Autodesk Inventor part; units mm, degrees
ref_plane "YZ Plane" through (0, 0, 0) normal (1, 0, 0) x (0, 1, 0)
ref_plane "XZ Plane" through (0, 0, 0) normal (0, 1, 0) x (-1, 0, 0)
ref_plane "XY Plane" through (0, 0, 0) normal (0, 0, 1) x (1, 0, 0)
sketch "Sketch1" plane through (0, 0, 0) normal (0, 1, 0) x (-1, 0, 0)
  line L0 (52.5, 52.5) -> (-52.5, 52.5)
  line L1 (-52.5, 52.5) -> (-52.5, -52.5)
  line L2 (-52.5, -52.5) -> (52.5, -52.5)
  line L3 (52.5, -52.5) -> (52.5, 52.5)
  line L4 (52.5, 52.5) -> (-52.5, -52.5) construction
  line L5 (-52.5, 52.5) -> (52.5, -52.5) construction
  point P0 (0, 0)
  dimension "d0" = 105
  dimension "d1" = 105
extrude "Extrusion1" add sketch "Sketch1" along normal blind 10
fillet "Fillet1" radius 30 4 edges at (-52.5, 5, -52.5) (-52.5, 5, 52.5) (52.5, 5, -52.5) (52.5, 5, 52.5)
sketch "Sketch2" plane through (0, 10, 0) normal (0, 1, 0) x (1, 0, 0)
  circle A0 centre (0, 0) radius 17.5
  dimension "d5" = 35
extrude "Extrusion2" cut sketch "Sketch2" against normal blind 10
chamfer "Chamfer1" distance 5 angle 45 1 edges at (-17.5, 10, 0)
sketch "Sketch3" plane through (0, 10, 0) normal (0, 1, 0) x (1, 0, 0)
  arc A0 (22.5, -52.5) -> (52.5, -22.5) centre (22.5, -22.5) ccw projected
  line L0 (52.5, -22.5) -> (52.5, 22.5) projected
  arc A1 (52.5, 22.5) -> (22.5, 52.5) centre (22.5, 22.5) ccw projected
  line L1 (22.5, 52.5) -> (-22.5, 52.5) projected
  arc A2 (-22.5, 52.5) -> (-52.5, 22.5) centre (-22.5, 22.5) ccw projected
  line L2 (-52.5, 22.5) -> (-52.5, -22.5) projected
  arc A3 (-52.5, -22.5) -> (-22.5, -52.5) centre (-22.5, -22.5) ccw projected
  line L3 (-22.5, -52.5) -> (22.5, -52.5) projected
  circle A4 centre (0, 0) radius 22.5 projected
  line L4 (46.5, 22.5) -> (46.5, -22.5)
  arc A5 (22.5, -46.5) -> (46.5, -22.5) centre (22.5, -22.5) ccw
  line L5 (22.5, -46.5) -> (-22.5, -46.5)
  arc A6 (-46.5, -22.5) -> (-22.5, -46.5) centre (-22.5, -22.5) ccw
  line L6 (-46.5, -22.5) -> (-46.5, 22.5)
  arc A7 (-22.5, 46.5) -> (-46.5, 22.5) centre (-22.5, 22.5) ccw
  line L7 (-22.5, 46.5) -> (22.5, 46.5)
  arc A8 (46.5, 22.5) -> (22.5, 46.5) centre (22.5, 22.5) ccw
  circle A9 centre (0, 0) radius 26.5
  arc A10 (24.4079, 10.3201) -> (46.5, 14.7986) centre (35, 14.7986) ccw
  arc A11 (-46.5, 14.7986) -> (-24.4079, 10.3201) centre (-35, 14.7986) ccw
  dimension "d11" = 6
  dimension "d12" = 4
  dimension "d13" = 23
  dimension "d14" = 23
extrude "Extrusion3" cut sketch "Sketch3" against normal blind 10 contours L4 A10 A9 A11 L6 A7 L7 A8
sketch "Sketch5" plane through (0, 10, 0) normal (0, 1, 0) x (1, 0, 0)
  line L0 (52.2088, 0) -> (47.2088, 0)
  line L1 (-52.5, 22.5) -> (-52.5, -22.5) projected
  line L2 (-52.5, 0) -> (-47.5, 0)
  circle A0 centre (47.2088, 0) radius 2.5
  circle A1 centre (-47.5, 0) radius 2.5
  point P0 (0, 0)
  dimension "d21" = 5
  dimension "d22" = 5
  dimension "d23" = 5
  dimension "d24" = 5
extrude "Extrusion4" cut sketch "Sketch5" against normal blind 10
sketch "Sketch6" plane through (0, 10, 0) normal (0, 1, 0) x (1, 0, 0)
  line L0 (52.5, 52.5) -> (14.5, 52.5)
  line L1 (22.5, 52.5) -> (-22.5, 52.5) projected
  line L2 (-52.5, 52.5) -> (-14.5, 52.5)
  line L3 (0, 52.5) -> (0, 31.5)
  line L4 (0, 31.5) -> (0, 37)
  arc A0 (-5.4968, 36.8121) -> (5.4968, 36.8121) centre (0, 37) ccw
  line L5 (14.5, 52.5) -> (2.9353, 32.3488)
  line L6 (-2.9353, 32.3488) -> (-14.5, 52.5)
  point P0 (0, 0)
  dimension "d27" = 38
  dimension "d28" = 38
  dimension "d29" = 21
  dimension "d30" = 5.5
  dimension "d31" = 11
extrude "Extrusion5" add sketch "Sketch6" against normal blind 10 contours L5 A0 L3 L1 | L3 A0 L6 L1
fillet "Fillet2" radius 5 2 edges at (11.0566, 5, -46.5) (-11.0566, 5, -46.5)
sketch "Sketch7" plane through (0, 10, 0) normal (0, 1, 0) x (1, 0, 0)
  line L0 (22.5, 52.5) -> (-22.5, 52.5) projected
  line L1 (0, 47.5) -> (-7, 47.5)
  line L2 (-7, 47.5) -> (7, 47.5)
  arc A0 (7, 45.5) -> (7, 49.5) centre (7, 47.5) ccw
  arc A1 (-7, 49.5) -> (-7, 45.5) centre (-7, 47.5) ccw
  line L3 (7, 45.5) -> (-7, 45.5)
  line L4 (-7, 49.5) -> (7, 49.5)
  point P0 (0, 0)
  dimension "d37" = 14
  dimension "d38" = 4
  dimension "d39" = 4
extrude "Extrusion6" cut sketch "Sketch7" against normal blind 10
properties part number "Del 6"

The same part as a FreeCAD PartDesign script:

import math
import FreeCAD as App
import Part
import Sketcher

V = App.Vector


def edges_at(feature, points):
    """Names of the edges that pass closest to the given points."""
    edges = feature.Shape.Edges
    near = lambda p: min(range(len(edges)), key=lambda i: edges[i].distToShape(Part.Vertex(*p))[0])
    return sorted({f"Edge{near(p) + 1}" for p in points})


def add_polygon(sketch, points):
    """Adds a closed chain of lines whose ends are joined by coincident constraints."""
    first, n = sketch.GeometryCount, len(points)
    for a, b in zip(points, points[1:] + points[:1]):
        sketch.addGeometry(Part.LineSegment(App.Vector(*a, 0), App.Vector(*b, 0)), False)
    for i in range(n):
        sketch.addConstraint(Sketcher.Constraint("Coincident", first + i, 2, first + (i + 1) % n, 1))

doc = App.newDocument("Part")
body = doc.addObject("PartDesign::Body", "Body")

# Sketch on XZ plane
sketch1 = body.newObject("Sketcher::SketchObject", "Sketch")
sketch1.AttachmentSupport = (doc.getObject("XZ_Plane"), [""])
sketch1.MapMode = "FlatFace"
add_polygon(sketch1, [(-52, -52), (-52, 52), (52, 52), (52, -52)])  # lines 0-3
sketch1.addConstraint([
    Sketcher.Constraint("Vertical", 0),
    Sketcher.Constraint("Horizontal", 1),
    Sketcher.Constraint("Vertical", 2),
    Sketcher.Constraint("Horizontal", 3),
    Sketcher.Constraint("Symmetric", 0, 2, 2, 2, -1, 1),
    Sketcher.Constraint("Equal", 3, 0),
    Sketcher.Constraint("DistanceX", 1, 1, 1, 2, 105.0),
])
pad1 = body.newObject("PartDesign::Pad", "Pad")
pad1.Profile = sketch1
pad1.Length = 10
pad1.Reversed = True
doc.recompute()

fillet = body.newObject("PartDesign::Fillet", "Fillet")
fillet.Base = (pad1, edges_at(pad1, [
    (-52.5, 5, -52.5),
    (-52.5, 5, 52.5),
    (52.5, 5, -52.5),
    (52.5, 5, 52.5),
]))
fillet.Radius = 30

# Sketch on XZ plane
sketch2 = body.newObject("Sketcher::SketchObject", "Sketch001")
sketch2.AttachmentSupport = (doc.getObject("XZ_Plane"), [""])
sketch2.MapMode = "FlatFace"
sketch2.AttachmentOffset = App.Placement(V(0, 0, -10), App.Rotation())
sketch2.addGeometry(Part.Circle(V(0, 0, 0), V(0, 0, 1), 18), False)
sketch2.addConstraint([
    Sketcher.Constraint("Coincident", 0, 3, -1, 1),
    Sketcher.Constraint("Diameter", 0, 35.0),
])
pocket1 = body.newObject("PartDesign::Pocket", "Pocket")
pocket1.Profile = sketch2
pocket1.Length = 10
pocket1.Reversed = True
doc.recompute()

chamfer = body.newObject("PartDesign::Chamfer", "Chamfer")
chamfer.Base = (pocket1, edges_at(pocket1, [(-17.5, 10, 0)]))
chamfer.Size = 5

# Sketch on XZ plane
sketch3 = body.newObject("Sketcher::SketchObject", "Sketch002")
sketch3.AttachmentSupport = (doc.getObject("XZ_Plane"), [""])
sketch3.MapMode = "FlatFace"
sketch3.AttachmentOffset = App.Placement(V(0, 0, -10), App.Rotation())
sketch3.addGeometry([
    Part.LineSegment(V(46, -15, 0), V(46, -22, 0)),  # 0
    Part.ArcOfCircle(Part.Circle(V(22, -22, 0), V(0, 0, 1), 24), math.radians(-90), math.radians(0)),  # 1
    Part.LineSegment(V(22, -46, 0), V(-22, -46, 0)),  # 2
    Part.ArcOfCircle(Part.Circle(V(-22, -22, 0), V(0, 0, 1), 24), math.radians(180), math.radians(270)),  # 3
    Part.LineSegment(V(-46, -22, 0), V(-46, -15, 0)),  # 4
    Part.ArcOfCircle(Part.Circle(V(-35, -15, 0), V(0, 0, 1), 12), math.radians(23), math.radians(180)),  # 5
    Part.ArcOfCircle(Part.Circle(V(0, 0, 0), V(0, 0, 1), 26), math.radians(-157), math.radians(-23)),  # 6
    Part.ArcOfCircle(Part.Circle(V(35, -15, 0), V(0, 0, 1), 11), math.radians(0), math.radians(157)),  # 7
], False)
sketch3.addConstraint([
    Sketcher.Constraint("Tangent", 0, 2, 1, 2),
    Sketcher.Constraint("Tangent", 1, 1, 2, 1),
    Sketcher.Constraint("Tangent", 2, 2, 3, 2),
    Sketcher.Constraint("Tangent", 3, 1, 4, 1),
    Sketcher.Constraint("Tangent", 4, 2, 5, 2),
    Sketcher.Constraint("Tangent", 5, 1, 6, 1),
    Sketcher.Constraint("Tangent", 6, 2, 7, 2),
    Sketcher.Constraint("Tangent", 7, 1, 0, 1),
    Sketcher.Constraint("Vertical", 0),
    Sketcher.Constraint("Horizontal", 2),
    Sketcher.Constraint("Vertical", 4),
    Sketcher.Constraint("Coincident", 6, 3, -1, 1),
    Sketcher.Constraint("Equal", 1, 3),
    Sketcher.Constraint("Equal", 5, 7),
    Sketcher.Constraint("Horizontal", 5, 3, 7, 3),
    Sketcher.Constraint("Radius", 5, 11.5),
    Sketcher.Constraint("Radius", 1, 24.0),
    Sketcher.Constraint("Radius", 6, 26.5),
    Sketcher.Constraint("DistanceX", 2, 2, 2, 1, 45.0),
    Sketcher.Constraint("DistanceY", 1, 3, -1, 1, 22.5),
])
pocket2 = body.newObject("PartDesign::Pocket", "Pocket001")
pocket2.Profile = sketch3
pocket2.Length = 10
pocket2.Reversed = True

# Sketch on XZ plane
sketch4 = body.newObject("Sketcher::SketchObject", "Sketch003")
sketch4.AttachmentSupport = (doc.getObject("XZ_Plane"), [""])
sketch4.MapMode = "FlatFace"
sketch4.AttachmentOffset = App.Placement(V(0, 0, -10), App.Rotation())
sketch4.addGeometry([
    Part.Circle(V(47.2, 0, 0), V(0, 0, 1), 2.5),
    Part.Circle(V(-47.5, 0, 0), V(0, 0, 1), 2.5),
], False)
sketch4.addConstraint([
    Sketcher.Constraint("Equal", 0, 1),
    Sketcher.Constraint("PointOnObject", 0, 3, -1),
    Sketcher.Constraint("PointOnObject", 1, 3, -1),
    Sketcher.Constraint("Diameter", 0, 5.0),
    Sketcher.Constraint("DistanceX", 1, 3, -1, 1, 47.5),
    Sketcher.Constraint("DistanceX", -1, 1, 0, 3, 47.2088),
])
pocket3 = body.newObject("PartDesign::Pocket", "Pocket002")
pocket3.Profile = sketch4
pocket3.Length = 10
pocket3.Reversed = True

# Sketch on XZ plane
sketch5 = body.newObject("Sketcher::SketchObject", "Sketch004")
sketch5.AttachmentSupport = (doc.getObject("XZ_Plane"), [""])
sketch5.MapMode = "FlatFace"
sketch5.AttachmentOffset = App.Placement(V(0, 0, -10), App.Rotation())
sketch5.addGeometry([
    Part.LineSegment(V(14, -52, 0), V(-14, -52, 0)),
    Part.LineSegment(V(-14, -52, 0), V(-3, -32, 0)),
    Part.ArcOfCircle(Part.Circle(V(0, -37, 0), V(0, 0, 1), 6), math.radians(58), math.radians(122)),
    Part.LineSegment(V(3, -32, 0), V(14, -52, 0)),
], False)
sketch5.addConstraint([
    Sketcher.Constraint("Coincident", 0, 2, 1, 1),
    Sketcher.Constraint("Coincident", 1, 2, 2, 2),
    Sketcher.Constraint("Coincident", 2, 1, 3, 1),
    Sketcher.Constraint("Coincident", 3, 2, 0, 1),
    Sketcher.Constraint("Horizontal", 0),
    Sketcher.Constraint("Symmetric", 1, 2, 2, 1, -2),
    Sketcher.Constraint("Equal", 1, 3),
    Sketcher.Constraint("Radius", 2, 5.5),
    Sketcher.Constraint("DistanceX", 0, 2, 0, 1, 29.0),
    Sketcher.Constraint("DistanceY", 2, 3, -1, 1, 37.0),
    Sketcher.Constraint("DistanceY", 0, 2, -1, 1, 52.5),
    Sketcher.Constraint("Distance", 1, 23.2339),
])
pad2 = body.newObject("PartDesign::Pad", "Pad001")
pad2.Profile = sketch5
pad2.Length = 10
doc.recompute()

fillet2 = body.newObject("PartDesign::Fillet", "Fillet001")
fillet2.Base = (pad2, edges_at(pad2, [(11.057, 5, -46.5), (-11.057, 5, -46.5)]))
fillet2.Radius = 5

# Sketch on XZ plane
sketch6 = body.newObject("Sketcher::SketchObject", "Sketch005")
sketch6.AttachmentSupport = (doc.getObject("XZ_Plane"), [""])
sketch6.MapMode = "FlatFace"
sketch6.AttachmentOffset = App.Placement(V(0, 0, -10), App.Rotation())
sketch6.addGeometry([
    Part.LineSegment(V(-7, -45.5, 0), V(7, -45.5, 0)),
    Part.ArcOfCircle(Part.Circle(V(7, -47.5, 0), V(0, 0, 1), 2), math.radians(-90), math.radians(90)),
    Part.LineSegment(V(7, -49.5, 0), V(-7, -49.5, 0)),
    Part.ArcOfCircle(Part.Circle(V(-7, -47.5, 0), V(0, 0, 1), 2), math.radians(90), math.radians(270)),
], False)
sketch6.addConstraint([
    Sketcher.Constraint("Tangent", 0, 2, 1, 2),
    Sketcher.Constraint("Tangent", 1, 1, 2, 1),
    Sketcher.Constraint("Tangent", 2, 2, 3, 2),
    Sketcher.Constraint("Tangent", 3, 1, 0, 1),
    Sketcher.Constraint("Horizontal", 0),
    Sketcher.Constraint("Horizontal", 2),
    Sketcher.Constraint("Radius", 1, 2.0),
    Sketcher.Constraint("DistanceX", 0, 1, 0, 2, 14.0),
    Sketcher.Constraint("DistanceX", -1, 1, 1, 3, 7.0),
    Sketcher.Constraint("DistanceY", 1, 3, -1, 1, 47.5),
])
pocket4 = body.newObject("PartDesign::Pocket", "Pocket003")
pocket4.Profile = sketch6
pocket4.Length = 10
pocket4.Reversed = True

doc.recompute()
